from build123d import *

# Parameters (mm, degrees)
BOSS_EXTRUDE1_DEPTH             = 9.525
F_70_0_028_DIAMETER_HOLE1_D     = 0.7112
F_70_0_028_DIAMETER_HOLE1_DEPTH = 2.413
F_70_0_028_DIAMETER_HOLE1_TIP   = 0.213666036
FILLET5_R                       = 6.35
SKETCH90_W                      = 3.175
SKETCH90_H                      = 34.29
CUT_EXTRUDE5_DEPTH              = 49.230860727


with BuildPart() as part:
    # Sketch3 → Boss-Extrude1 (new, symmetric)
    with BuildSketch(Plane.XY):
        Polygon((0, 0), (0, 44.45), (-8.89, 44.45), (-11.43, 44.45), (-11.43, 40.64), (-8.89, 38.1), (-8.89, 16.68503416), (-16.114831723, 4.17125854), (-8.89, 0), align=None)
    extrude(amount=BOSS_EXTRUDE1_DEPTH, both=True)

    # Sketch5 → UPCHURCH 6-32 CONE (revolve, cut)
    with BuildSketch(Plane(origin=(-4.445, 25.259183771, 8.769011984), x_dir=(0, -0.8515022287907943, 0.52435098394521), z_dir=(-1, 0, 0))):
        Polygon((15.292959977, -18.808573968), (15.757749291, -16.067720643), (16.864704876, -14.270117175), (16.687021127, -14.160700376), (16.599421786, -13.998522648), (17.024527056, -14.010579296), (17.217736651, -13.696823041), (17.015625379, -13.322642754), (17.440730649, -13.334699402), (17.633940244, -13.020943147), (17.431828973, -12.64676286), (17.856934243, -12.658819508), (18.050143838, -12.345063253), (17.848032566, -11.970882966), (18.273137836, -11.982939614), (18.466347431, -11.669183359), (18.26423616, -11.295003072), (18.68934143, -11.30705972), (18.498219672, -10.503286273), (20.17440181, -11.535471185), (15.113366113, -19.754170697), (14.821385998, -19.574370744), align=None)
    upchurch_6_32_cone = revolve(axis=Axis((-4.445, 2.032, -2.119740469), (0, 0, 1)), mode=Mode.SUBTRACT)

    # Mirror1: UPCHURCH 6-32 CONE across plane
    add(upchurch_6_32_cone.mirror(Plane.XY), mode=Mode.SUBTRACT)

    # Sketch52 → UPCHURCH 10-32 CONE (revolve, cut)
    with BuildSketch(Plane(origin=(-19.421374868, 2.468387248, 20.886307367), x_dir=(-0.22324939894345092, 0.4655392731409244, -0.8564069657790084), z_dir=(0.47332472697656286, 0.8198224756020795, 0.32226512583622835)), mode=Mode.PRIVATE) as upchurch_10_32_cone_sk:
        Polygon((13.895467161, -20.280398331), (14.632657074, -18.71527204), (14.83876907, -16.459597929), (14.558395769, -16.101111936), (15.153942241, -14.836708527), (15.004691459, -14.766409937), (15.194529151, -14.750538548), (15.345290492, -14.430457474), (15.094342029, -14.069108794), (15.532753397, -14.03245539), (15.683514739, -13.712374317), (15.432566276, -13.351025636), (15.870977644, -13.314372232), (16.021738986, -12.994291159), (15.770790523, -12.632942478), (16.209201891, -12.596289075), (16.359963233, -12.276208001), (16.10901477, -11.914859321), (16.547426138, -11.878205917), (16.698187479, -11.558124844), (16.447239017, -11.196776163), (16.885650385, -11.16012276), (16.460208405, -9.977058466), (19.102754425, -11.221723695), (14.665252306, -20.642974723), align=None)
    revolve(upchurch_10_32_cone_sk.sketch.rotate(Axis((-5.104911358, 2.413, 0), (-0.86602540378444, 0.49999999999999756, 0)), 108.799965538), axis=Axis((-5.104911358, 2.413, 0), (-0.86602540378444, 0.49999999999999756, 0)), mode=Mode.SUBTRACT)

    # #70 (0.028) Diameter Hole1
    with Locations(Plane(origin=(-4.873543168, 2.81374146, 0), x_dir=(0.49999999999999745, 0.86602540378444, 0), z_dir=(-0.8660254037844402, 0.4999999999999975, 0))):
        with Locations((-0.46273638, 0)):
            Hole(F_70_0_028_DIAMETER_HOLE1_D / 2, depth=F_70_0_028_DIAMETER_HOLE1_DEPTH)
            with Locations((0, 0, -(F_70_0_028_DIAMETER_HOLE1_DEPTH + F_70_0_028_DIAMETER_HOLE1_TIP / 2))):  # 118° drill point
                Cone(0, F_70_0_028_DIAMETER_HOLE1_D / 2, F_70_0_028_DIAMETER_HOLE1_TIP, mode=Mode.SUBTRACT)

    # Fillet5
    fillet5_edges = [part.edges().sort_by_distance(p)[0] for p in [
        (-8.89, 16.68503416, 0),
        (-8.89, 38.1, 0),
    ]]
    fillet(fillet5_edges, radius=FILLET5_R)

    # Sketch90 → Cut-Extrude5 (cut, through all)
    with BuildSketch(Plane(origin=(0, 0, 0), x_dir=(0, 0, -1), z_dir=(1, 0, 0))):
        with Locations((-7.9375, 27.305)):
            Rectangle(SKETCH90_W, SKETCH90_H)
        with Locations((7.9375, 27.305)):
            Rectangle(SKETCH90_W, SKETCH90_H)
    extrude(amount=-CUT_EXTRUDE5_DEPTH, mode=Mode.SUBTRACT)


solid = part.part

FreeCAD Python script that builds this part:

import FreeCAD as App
import Part
import Sketcher
from FreeCAD import Vector
Q = App.Units.Quantity


def edges_at(feature, points):
    """Names of the edges that pass closest to the given points."""
    edges = feature.Shape.Edges
    near = lambda p: min(range(len(edges)), key=lambda i: edges[i].distToShape(Part.Vertex(*p))[0])
    return sorted({f"Edge{near(p) + 1}" for p in points})


def add_polygon(sketch, points):
    """Adds a closed chain of lines whose ends are joined by coincident constraints."""
    first, n = sketch.GeometryCount, len(points)
    for a, b in zip(points, points[1:] + points[:1]):
        sketch.addGeometry(Part.LineSegment(App.Vector(*a, 0), App.Vector(*b, 0)), False)
    for i in range(n):
        sketch.addConstraint(Sketcher.Constraint("Coincident", first + i, 2, first + (i + 1) % n, 1))

doc = App.newDocument("Part")
params = doc.addObject("Spreadsheet::Sheet", "Params")
for row, (alias, value) in enumerate([
    ("sketch1_width", "0.45 in"),
    ("sketch1_width2", "0.35 in"),
    ("sketch1_height", "1.75 in"),
    ("sketch1_height2", "0.15 in"),
    ("pad1_length", "0.75 in"),
    ("sketch2_height", "0.38 in"),
    ("groove_angle", "360 deg"),
    ("sketch3_length", "0.41 in"),
    ("sketch3_length2", "0.115 in"),
    ("groove2_angle", "360 deg"),
    ("sketch4_diameter", "0.028 in"),
    ("hole_diameter", "0.028 in"),
    ("hole_depth", "0.095 in"),
    ("fillet_radius", "0.25 in"),
    ("sketch5_width", "1.35 in"),
    ("sketch5_height", "0.125 in"),
], start=1):
    params.set(f"A{row}", alias)
    params.set(f"B{row}", "=" + value)
    params.setAlias(f"B{row}", alias)

body = doc.addObject("PartDesign::Body", "Body")

# Sketch on XY plane
sketch1 = body.newObject("Sketcher::SketchObject", "Sketch")
sketch1.AttachmentSupport = (doc.getObject("XY_Plane"), [""])
sketch1.MapMode = "FlatFace"
add_polygon(sketch1, [(0, 0), (0, 44.45), (-11.43, 44.45), (-11.43, 40.64), (-8.89, 38.1), (-8.89, 16.685034), (-16.114832, 4.171259), (-8.89, 0)])  # lines 0-7
sketch1.addConstraint(Sketcher.Constraint("Vertical", 0))
sketch1.addConstraint(Sketcher.Constraint("Horizontal", 1))
sketch1.addConstraint(Sketcher.Constraint("Vertical", 2))
sketch1.addConstraint(Sketcher.Constraint("Vertical", 4))
sketch1.addConstraint(Sketcher.Constraint("Horizontal", 7))
sketch1.addConstraint(Sketcher.Constraint("Coincident", 7, 2, -1, 1))
sketch1.addConstraint(Sketcher.Constraint("Perpendicular", 5, 6))
sketch1.addConstraint(Sketcher.Constraint("Vertical", 4, 2, 6, 2))
sketch1.addConstraint(Sketcher.Constraint("Angle", 3, Q("-45 deg")))
sketch1.addConstraint(Sketcher.Constraint("Angle", 5, Q("-120 deg")))
sketch1.addConstraint(Sketcher.Constraint("DistanceX", 1, 2, 1, 1, Q("0.45 in")))
sketch1.addConstraint(Sketcher.Constraint("DistanceX", 7, 1, 7, 2, Q("0.35 in")))
sketch1.addConstraint(Sketcher.Constraint("DistanceY", 0, 1, 0, 2, Q("1.75 in")))
sketch1.addConstraint(Sketcher.Constraint("DistanceY", 2, 2, 2, 1, Q("0.15 in")))
sketch1.addConstraint(Sketcher.Constraint("DistanceY", 4, 2, 4, 1, Q("21.414966 mm")))
sketch1.setExpression("Constraints[18]", "Params.sketch1_width")
sketch1.setExpression("Constraints[19]", "Params.sketch1_width2")
sketch1.setExpression("Constraints[20]", "Params.sketch1_height")
sketch1.setExpression("Constraints[21]", "Params.sketch1_height2")
pad1 = body.newObject("PartDesign::Pad", "Pad")
pad1.Profile = sketch1
pad1.setExpression("Length", "Params.pad1_length")
pad1.Midplane = True

# Sketch on YZ plane
sketch2 = body.newObject("Sketcher::SketchObject", "Sketch001")
sketch2.AttachmentSupport = (doc.getObject("YZ_Plane"), [""])
sketch2.MapMode = "FlatFace"
sketch2.AttachmentOffset = App.Placement(Vector(0, 0, -0.175 * 25.4), App.Rotation())
add_polygon(sketch2, [(3.4163, 3.349903), (2.3749, 0.772348), (2.3749, -0.127), (2.032, -0.127), (2.032, 9.525), (4.0005, 9.525), (3.4163, 8.9408), (3.7846, 8.728162), (3.4163, 8.515524), (3.4163, 8.14705), (3.7846, 7.934412), (3.4163, 7.721774), (3.4163, 7.3533), (3.7846, 7.140662), (3.4163, 6.928024), (3.4163, 6.55955), (3.7846, 6.346912), (3.4163, 6.134274), (3.4163, 5.7658), (3.7846, 5.553162), (3.624971, 5.461), (3.4163, 5.461)])  # lines 0-21
sketch2.addGeometry(Part.LineSegment(Vector(2.032, -0.127, 0), Vector(2.032, 9.525, 0)), True)  # axis
sketch2.addConstraint(Sketcher.Constraint("Vertical", 1))
sketch2.addConstraint(Sketcher.Constraint("Horizontal", 2))
sketch2.addConstraint(Sketcher.Constraint("Vertical", 3))
sketch2.addConstraint(Sketcher.Constraint("Horizontal", 4))
sketch2.addConstraint(Sketcher.Constraint("Vertical", 8))
sketch2.addConstraint(Sketcher.Constraint("Vertical", 11))
sketch2.addConstraint(Sketcher.Constraint("Vertical", 14))
sketch2.addConstraint(Sketcher.Constraint("Vertical", 17))
sketch2.addConstraint(Sketcher.Constraint("Horizontal", 20))
sketch2.addConstraint(Sketcher.Constraint("Vertical", 21))
sketch2.addConstraint(Sketcher.Constraint("Vertical", 22))
sketch2.addConstraint(Sketcher.Constraint("Coincident", 22, 1, 2, 2))
sketch2.addConstraint(Sketcher.Constraint("Parallel", 6, 9))
sketch2.addConstraint(Sketcher.Constraint("Parallel", 7, 10))
sketch2.addConstraint(Sketcher.Constraint("Parallel", 9, 12))
sketch2.addConstraint(Sketcher.Constraint("Parallel", 10, 13))
sketch2.addConstraint(Sketcher.Constraint("Parallel", 12, 15))
sketch2.addConstraint(Sketcher.Constraint("Parallel", 13, 16))
sketch2.addConstraint(Sketcher.Constraint("Parallel", 15, 18))
sketch2.addConstraint(Sketcher.Constraint("Parallel", 16, 19))
sketch2.addConstraint(Sketcher.Constraint("Horizontal", 4, 2, 22, 2))
sketch2.addConstraint(Sketcher.Constraint("Vertical", 5, 2, 7, 2))
sketch2.addConstraint(Sketcher.Constraint("Vertical", 6, 2, 9, 2))
sketch2.addConstraint(Sketcher.Constraint("Vertical", 8, 2, 10, 2))
sketch2.addConstraint(Sketcher.Constraint("Vertical", 9, 2, 12, 2))
sketch2.addConstraint(Sketcher.Constraint("Vertical", 11, 2, 13, 2))
sketch2.addConstraint(Sketcher.Constraint("Vertical", 12, 2, 15, 2))
sketch2.addConstraint(Sketcher.Constraint("Vertical", 14, 2, 16, 2))
sketch2.addConstraint(Sketcher.Constraint("Vertical", 15, 2, 18, 2))
sketch2.addConstraint(Sketcher.Constraint("Vertical", 17, 2, 20, 2))
sketch2.addConstraint(Sketcher.Constraint("Equal", 8, 11))
sketch2.addConstraint(Sketcher.Constraint("Equal", 11, 14))
sketch2.addConstraint(Sketcher.Constraint("Equal", 14, 17))
sketch2.addConstraint(Sketcher.Constraint("Equal", 6, 7))
sketch2.addConstraint(Sketcher.Constraint("Angle", 0, Q("-112 deg")))
sketch2.addConstraint(Sketcher.Constraint("Angle", 5, Q("-135 deg")))
sketch2.addConstraint(Sketcher.Constraint("Angle", 6, Q("-30 deg")))
sketch2.addConstraint(Sketcher.Constraint("DistanceY", 3, 1, 3, 2, Q("0.38 in")))
sketch2.addConstraint(Sketcher.Constraint("DistanceX", -1, 1, 2, 2, Q("0.08 in")))
sketch2.addConstraint(Sketcher.Constraint("DistanceY", 22, 1, 20, 2, Q("0.22 in")))
sketch2.addConstraint(Sketcher.Constraint("DistanceX", 2, 2, 2, 1, Q("0.0135 in")))
sketch2.addConstraint(Sketcher.Constraint("DistanceX", 4, 1, 4, 2, Q("0.0775 in")))
sketch2.addConstraint(Sketcher.Constraint("DistanceY", 1, 2, -1, 1, Q("0.005 in")))
sketch2.addConstraint(Sketcher.Constraint("DistanceY", -1, 1, 5, 2, Q("0.352 in")))
sketch2.addConstraint(Sketcher.Constraint("DistanceX", -1, 1, 6, 2, Q("0.149 in")))
sketch2.addConstraint(Sketcher.Constraint("DistanceY", -1, 1, 17, 2, Q("0.227 in")))
sketch2.addConstraint(Sketcher.Constraint("DistanceY", 1, 2, 1, 1, Q("0.899348 mm")))
sketch2.setExpression("Constraints[59]", "Params.sketch2_height")
groove = body.newObject("PartDesign::Groove", "Groove")
groove.Profile = sketch2
groove.ReferenceAxis = (sketch2, ["Axis0"])
groove.setExpression("Angle", "Params.groove_angle")
doc.recompute()

mirrored = body.newObject("PartDesign::Mirrored", "Mirrored")
mirrored.Originals = [groove]
mirrored.MirrorPlane = (doc.getObject("XY_Plane"), [""])
body.Tip = mirrored

# Sketch on an angled plane
sketch3 = body.newObject("Sketcher::SketchObject", "Sketch002")
sketch3.Placement = App.Placement(Vector(-19.421375, 2.468387, 20.886307), App.Rotation(Vector(-0.223249399, 0.465539273, -0.856406966), Vector(-0.852128752, 0.333413098, 0.403376124), Vector(0.473324727, 0.819822476, 0.322265126), "ZXY"))
add_polygon(sketch3, [(14.632657, -18.715272), (13.895467, -20.280398), (14.665252, -20.642975), (19.102754, -11.221724), (16.460208, -9.977058), (16.88565, -11.160123), (16.447239, -11.196776), (16.698187, -11.558125), (16.547426, -11.878206), (16.109015, -11.914859), (16.359963, -12.276208), (16.209202, -12.596289), (15.770791, -12.632942), (16.021739, -12.994291), (15.870978, -13.314372), (15.432566, -13.351026), (15.683515, -13.712374), (15.532753, -14.032455), (15.094342, -14.069109), (15.34529, -14.430457), (15.194529, -14.750539), (15.004691, -14.76641), (15.153942, -14.836709), (14.558396, -16.101112), (14.838769, -16.459598)])  # lines 0-24
sketch3.addGeometry(Part.LineSegment(Vector(14.665252, -20.642975, 0), Vector(19.102754, -11.221724, 0)), True)  # axis
sketch3.addConstraint(Sketcher.Constraint("Coincident", 25, 1, 1, 2))
sketch3.addConstraint(Sketcher.Constraint("Coincident", 25, 2, 2, 2))
sketch3.addConstraint(Sketcher.Constraint("Distance", 2, Q("0.41 in")))
sketch3.addConstraint(Sketcher.Constraint("DistanceY", 22, 2, 17, 2, Q("0.0800001 in")))
sketch3.addConstraint(Sketcher.Constraint("Distance", 3, Q("0.115 in")))
sketch3.addConstraint(Sketcher.Constraint("Distance", 1, Q("0.0335 in")))
sketch3.addConstraint(Sketcher.Constraint("Distance", 20, Q("0.0075 in")))
sketch3.addConstraint(Sketcher.Constraint("DistanceY", 2, 2, -1, 1, Q("0.4418001 in")))
sketch3.addConstraint(Sketcher.Constraint("DistanceY", 25, 1, 23, 2, Q("0.1646999 in")))
sketch3.addConstraint(Sketcher.Constraint("DistanceY", 0, 2, -1, 1, Q("20.280398 mm")))
sketch3.addConstraint(Sketcher.Constraint("DistanceX", -1, 1, 10, 2, Q("16.209202 mm")))
sketch3.addConstraint(Sketcher.Constraint("DistanceY", 2, 2, 4, 2, Q("0.061601 mm")))
sketch3.addConstraint(Sketcher.Constraint("DistanceX", 1, 2, 4, 2, Q("2.220398 mm")))
sketch3.addConstraint(Sketcher.Constraint("DistanceY", 1, 2, 5, 2, Q("9.446199 mm")))
sketch3.addConstraint(Sketcher.Constraint("DistanceY", 6, 2, 2, 2, Q("0.336401 mm")))
sketch3.addConstraint(Sketcher.Constraint("DistanceY", 8, 2, 3, 2, Q("1.937801 mm")))
sketch3.addConstraint(Sketcher.Constraint("DistanceX", 20, 2, 18, 2, Q("0.340599 mm")))
sketch3.addConstraint(Sketcher.Constraint("DistanceY", 20, 2, 17, 2, Q("0.697301 mm")))
sketch3.addConstraint(Sketcher.Constraint("DistanceY", 21, 2, 20, 2, Q("0.070299 mm")))
sketch3.addConstraint(Sketcher.Constraint("DistanceX", 17, 2, 21, 2, Q("0.0596 mm")))
sketch3.addConstraint(Sketcher.Constraint("Distance", 0, Q("1.730049 mm")))
sketch3.addConstraint(Sketcher.Constraint("Distance", 5, Q("0.439941 mm")))
sketch3.addConstraint(Sketcher.Constraint("Distance", 6, Q("0.439941 mm")))
sketch3.addConstraint(Sketcher.Constraint("Distance", 7, Q("0.353809 mm")))
sketch3.addConstraint(Sketcher.Constraint("Distance", 8, Q("0.439941 mm")))
sketch3.addConstraint(Sketcher.Constraint("Distance", 9, Q("0.439941 mm")))
sketch3.addConstraint(Sketcher.Constraint("Distance", 10, Q("0.353809 mm")))
sketch3.addConstraint(Sketcher.Constraint("Distance", 11, Q("0.439941 mm")))
sketch3.addConstraint(Sketcher.Constraint("Distance", 12, Q("0.439941 mm")))
sketch3.addConstraint(Sketcher.Constraint("Distance", 13, Q("0.353809 mm")))
sketch3.addConstraint(Sketcher.Constraint("Distance", 14, Q("0.439941 mm")))
sketch3.addConstraint(Sketcher.Constraint("Distance", 15, Q("0.439941 mm")))
sketch3.addConstraint(Sketcher.Constraint("Distance", 16, Q("0.353809 mm")))
sketch3.addConstraint(Sketcher.Constraint("Distance", 17, Q("0.439941 mm")))
sketch3.addConstraint(Sketcher.Constraint("Distance", 18, Q("0.439941 mm")))
sketch3.addConstraint(Sketcher.Constraint("Distance", 19, Q("0.353809 mm")))
sketch3.addConstraint(Sketcher.Constraint("Distance", 24, Q("2.265071 mm")))
sketch3.addConstraint(Sketcher.Constraint("DistanceX", -1, 1, 3, 2, Q("16.460208 mm")))
sketch3.addConstraint(Sketcher.Constraint("DistanceY", 3, 2, -1, 1, Q("9.977058 mm")))
sketch3.addConstraint(Sketcher.Constraint("DistanceX", -1, 1, 4, 2, Q("16.88565 mm")))
sketch3.addConstraint(Sketcher.Constraint("DistanceY", 9, 2, -1, 1, Q("12.276208 mm")))
sketch3.addConstraint(Sketcher.Constraint("DistanceY", 10, 2, -1, 1, Q("12.596289 mm")))
sketch3.addConstraint(Sketcher.Constraint("DistanceX", -1, 1, 11, 2, Q("15.770791 mm")))
sketch3.addConstraint(Sketcher.Constraint("DistanceX", -1, 1, 12, 2, Q("16.021739 mm")))
sketch3.addConstraint(Sketcher.Constraint("DistanceY", 17, 2, -1, 1, Q("14.069109 mm")))
sketch3.addConstraint(Sketcher.Constraint("DistanceX", -1, 1, 18, 2, Q("15.34529 mm")))
sketch3.addConstraint(Sketcher.Constraint("DistanceX", -1, 1, 19, 2, Q("15.194529 mm")))
sketch3.addConstraint(Sketcher.Constraint("DistanceX", -1, 1, 23, 2, Q("14.838769 mm")))
sketch3.addConstraint(Sketcher.Constraint("DistanceX", 13, 2, 12, 2, Q("0.150761 mm")))
sketch3.addConstraint(Sketcher.Constraint("DistanceX", 14, 2, 13, 2, Q("0.438411 mm")))
sketch3.addConstraint(Sketcher.Constraint("DistanceX", 14, 2, 15, 2, Q("0.250948 mm")))
sketch3.addConstraint(Sketcher.Constraint("DistanceX", 22, 2, 24, 2, Q("0.074261 mm")))
sketch3.setExpression("Constraints[27]", "Params.sketch3_length")
sketch3.setExpression("Constraints[29]", "Params.sketch3_length2")
groove2 = body.newObject("PartDesign::Groove", "Groove001")
groove2.Profile = sketch3
groove2.ReferenceAxis = (sketch3, ["Axis0"])
groove2.setExpression("Angle", "Params.groove2_angle")

# Sketch on an angled plane
sketch4 = body.newObject("Sketcher::SketchObject", "Sketch003")
sketch4.Placement = App.Placement(Vector(-4.873543, 2.813741, 0), App.Rotation(Vector(0.5, 0.866025404, 0), Vector(0, 0, -1), Vector(-0.866025404, 0.5, 0), "ZXY"))
sketch4.addGeometry(Part.Circle(Vector(-0.462736, 0, 0), Vector(0, 0, 1), 0.3556), False)
sketch4.addConstraint(Sketcher.Constraint("PointOnObject", 0, 3, -1))
sketch4.addConstraint(Sketcher.Constraint("Diameter", 0, Q("0.028 in")))
sketch4.addConstraint(Sketcher.Constraint("DistanceX", 0, 3, -1, 1, Q("0.462736 mm")))
sketch4.setExpression("Constraints[1]", "Params.sketch4_diameter")
doc.recompute()
hole = body.newObject("PartDesign::Hole", "Hole")
hole.Profile = sketch4
hole.ThreadType = "None"
hole.setExpression("Diameter", "Params.hole_diameter")
hole.DepthType = "Dimension"
hole.setExpression("Depth", "Params.hole_depth")
hole.DrillPoint = "Angled"
hole.DrillPointAngle = 118
doc.recompute()

fillet = body.newObject("PartDesign::Fillet", "Fillet")
fillet.Base = (hole, edges_at(hole, [(-8.89, 16.685, 0), (-8.89, 38.1, 0)]))
fillet.setExpression("Radius", "Params.fillet_radius")

# Sketch on YZ plane
sketch5 = body.newObject("Sketcher::SketchObject", "Sketch004")
sketch5.AttachmentSupport = (doc.getObject("YZ_Plane"), [""])
sketch5.MapMode = "FlatFace"
add_polygon(sketch5, [(44.45, 9.525), (10.16, 9.525), (10.16, 6.35), (44.45, 6.35)])  # lines 0-3
add_polygon(sketch5, [(44.45, -6.35), (10.16, -6.35), (10.16, -9.525), (44.45, -9.525)])  # lines 4-7
sketch5.addConstraint(Sketcher.Constraint("Horizontal", 0))
sketch5.addConstraint(Sketcher.Constraint("Vertical", 1))
sketch5.addConstraint(Sketcher.Constraint("Horizontal", 2))
sketch5.addConstraint(Sketcher.Constraint("Vertical", 3))
sketch5.addConstraint(Sketcher.Constraint("Horizontal", 4))
sketch5.addConstraint(Sketcher.Constraint("Vertical", 5))
sketch5.addConstraint(Sketcher.Constraint("Horizontal", 6))
sketch5.addConstraint(Sketcher.Constraint("Vertical", 7))
sketch5.addConstraint(Sketcher.Constraint("Symmetric", 1, 2, 4, 2, -1))
sketch5.addConstraint(Sketcher.Constraint("Symmetric", 3, 2, 6, 2, -1))
sketch5.addConstraint(Sketcher.Constraint("DistanceX", 0, 2, 0, 1, Q("1.35 in")))
sketch5.addConstraint(Sketcher.Constraint("DistanceX", -1, 1, 0, 2, Q("0.4 in")))
sketch5.addConstraint(Sketcher.Constraint("DistanceY", 4, 2, 1, 2, Q("0.5 in")))
sketch5.addConstraint(Sketcher.Constraint("DistanceY", 1, 2, 1, 1, Q("0.125 in")))
sketch5.setExpression("Constraints[18]", "Params.sketch5_width")
sketch5.setExpression("Constraints[21]", "Params.sketch5_height")
pocket1 = body.newObject("PartDesign::Pocket", "Pocket")
pocket1.Profile = sketch5
pocket1.Type = "ThroughAll"

doc.recompute()
